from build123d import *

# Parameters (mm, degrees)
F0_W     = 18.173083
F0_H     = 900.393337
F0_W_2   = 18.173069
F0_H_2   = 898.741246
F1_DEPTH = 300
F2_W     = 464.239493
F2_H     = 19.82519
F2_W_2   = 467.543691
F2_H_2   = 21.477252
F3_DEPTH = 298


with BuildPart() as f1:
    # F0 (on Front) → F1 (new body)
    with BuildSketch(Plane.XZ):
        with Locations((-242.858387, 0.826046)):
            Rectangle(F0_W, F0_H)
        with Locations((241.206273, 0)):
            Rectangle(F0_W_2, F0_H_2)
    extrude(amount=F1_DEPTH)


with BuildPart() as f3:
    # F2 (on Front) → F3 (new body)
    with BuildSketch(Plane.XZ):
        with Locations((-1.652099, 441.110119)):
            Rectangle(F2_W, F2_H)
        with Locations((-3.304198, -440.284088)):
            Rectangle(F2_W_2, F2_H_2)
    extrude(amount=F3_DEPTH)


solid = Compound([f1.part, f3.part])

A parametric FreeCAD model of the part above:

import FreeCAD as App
import Part
import Sketcher
from FreeCAD import Vector
Q = App.Units.Quantity


def add_polygon(sketch, points):
    """Adds a closed chain of lines whose ends are joined by coincident constraints."""
    first, n = sketch.GeometryCount, len(points)
    for a, b in zip(points, points[1:] + points[:1]):
        sketch.addGeometry(Part.LineSegment(App.Vector(*a, 0), App.Vector(*b, 0)), False)
    for i in range(n):
        sketch.addConstraint(Sketcher.Constraint("Coincident", first + i, 2, first + (i + 1) % n, 1))

doc = App.newDocument("Part")
params = doc.addObject("Spreadsheet::Sheet", "Params")
for row, (alias, value) in enumerate([
    ("pad1_length", "300 mm"),
    ("pad2_length", "298 mm"),
], start=1):
    params.set(f"A{row}", alias)
    params.set(f"B{row}", "=" + value)
    params.setAlias(f"B{row}", alias)

body = doc.addObject("PartDesign::Body", "Body")
body.AllowCompound = True

sketch1 = doc.addObject("Sketcher::SketchObject", "Sketch")
body.addObject(sketch1)
sketch1.AttachmentSupport = (doc.XZ_Plane, [""])
sketch1.MapMode = "FlatFace"
add_polygon(sketch1, [(-251.944929, 451.022715), (-251.944929, -449.370623), (-233.771846, -449.370623), (-233.771846, 451.022715)])
add_polygon(sketch1, [(232.119739, 449.370623), (232.119739, -449.370623), (250.292808, -449.370623), (250.292808, 449.370623)])
sketch1.addConstraint([
    Sketcher.Constraint("Vertical", 0),
    Sketcher.Constraint("Horizontal", 1),
    Sketcher.Constraint("Vertical", 2),
    Sketcher.Constraint("Horizontal", 3),
    Sketcher.Constraint("Vertical", 4),
    Sketcher.Constraint("Horizontal", 5),
    Sketcher.Constraint("Vertical", 6),
    Sketcher.Constraint("Horizontal", 7),
    Sketcher.Constraint("Horizontal", 1, 2, 4, 2),
    Sketcher.Constraint("DistanceX", 5, 1, 5, 2, Q("18.173069 mm")),
    Sketcher.Constraint("DistanceX", 1, 1, 1, 2, Q("18.173083 mm")),
    Sketcher.Constraint("DistanceY", 0, 2, 0, 1, Q("900.393337 mm")),
    Sketcher.Constraint("DistanceY", 4, 2, 4, 1, Q("898.741246 mm")),
    Sketcher.Constraint("DistanceX", 0, 2, -1, 1, Q("251.944929 mm")),
    Sketcher.Constraint("DistanceX", -1, 1, 4, 2, Q("232.119739 mm")),
    Sketcher.Constraint("DistanceY", 0, 2, -1, 1, Q("449.370623 mm")),
])
pad1 = doc.addObject("PartDesign::Pad", "Pad")
body.addObject(pad1)
pad1.Profile = sketch1
pad1.setExpression("Length", "Params.pad1_length")
body2 = doc.addObject("PartDesign::Body", "Body001")
body2.AllowCompound = True

sketch2 = doc.addObject("Sketcher::SketchObject", "Sketch001")
body2.addObject(sketch2)
sketch2.AttachmentSupport = (doc.getObject("XZ_Plane001"), [""])
sketch2.MapMode = "FlatFace"
add_polygon(sketch2, [(-233.771846, 451.022714), (-233.771846, 431.197524), (230.467647, 431.197524), (230.467647, 451.022714)])
add_polygon(sketch2, [(-237.076043, -429.545462), (-237.076043, -451.022714), (230.467647, -451.022714), (230.467647, -429.545462)])
sketch2.addConstraint([
    Sketcher.Constraint("Vertical", 0),
    Sketcher.Constraint("Horizontal", 1),
    Sketcher.Constraint("Vertical", 2),
    Sketcher.Constraint("Horizontal", 3),
    Sketcher.Constraint("Vertical", 4),
    Sketcher.Constraint("Horizontal", 5),
    Sketcher.Constraint("Vertical", 6),
    Sketcher.Constraint("Horizontal", 7),
    Sketcher.Constraint("Symmetric", 2, 2, 5, 2, -1),
    Sketcher.Constraint("DistanceX", 5, 1, 5, 2, Q("467.543691 mm")),
    Sketcher.Constraint("DistanceY", 0, 2, 0, 1, Q("19.82519 mm")),
    Sketcher.Constraint("DistanceX", 1, 1, 1, 2, Q("464.239493 mm")),
    Sketcher.Constraint("DistanceY", 4, 2, 4, 1, Q("21.477252 mm")),
    Sketcher.Constraint("DistanceY", 6, 2, -1, 1, Q("429.545462 mm")),
    Sketcher.Constraint("DistanceX", 0, 2, -1, 1, Q("233.771846 mm")),
])
pad2 = doc.addObject("PartDesign::Pad", "Pad001")
body2.addObject(pad2)
pad2.Profile = sketch2
pad2.setExpression("Length", "Params.pad2_length")

doc.recompute()
